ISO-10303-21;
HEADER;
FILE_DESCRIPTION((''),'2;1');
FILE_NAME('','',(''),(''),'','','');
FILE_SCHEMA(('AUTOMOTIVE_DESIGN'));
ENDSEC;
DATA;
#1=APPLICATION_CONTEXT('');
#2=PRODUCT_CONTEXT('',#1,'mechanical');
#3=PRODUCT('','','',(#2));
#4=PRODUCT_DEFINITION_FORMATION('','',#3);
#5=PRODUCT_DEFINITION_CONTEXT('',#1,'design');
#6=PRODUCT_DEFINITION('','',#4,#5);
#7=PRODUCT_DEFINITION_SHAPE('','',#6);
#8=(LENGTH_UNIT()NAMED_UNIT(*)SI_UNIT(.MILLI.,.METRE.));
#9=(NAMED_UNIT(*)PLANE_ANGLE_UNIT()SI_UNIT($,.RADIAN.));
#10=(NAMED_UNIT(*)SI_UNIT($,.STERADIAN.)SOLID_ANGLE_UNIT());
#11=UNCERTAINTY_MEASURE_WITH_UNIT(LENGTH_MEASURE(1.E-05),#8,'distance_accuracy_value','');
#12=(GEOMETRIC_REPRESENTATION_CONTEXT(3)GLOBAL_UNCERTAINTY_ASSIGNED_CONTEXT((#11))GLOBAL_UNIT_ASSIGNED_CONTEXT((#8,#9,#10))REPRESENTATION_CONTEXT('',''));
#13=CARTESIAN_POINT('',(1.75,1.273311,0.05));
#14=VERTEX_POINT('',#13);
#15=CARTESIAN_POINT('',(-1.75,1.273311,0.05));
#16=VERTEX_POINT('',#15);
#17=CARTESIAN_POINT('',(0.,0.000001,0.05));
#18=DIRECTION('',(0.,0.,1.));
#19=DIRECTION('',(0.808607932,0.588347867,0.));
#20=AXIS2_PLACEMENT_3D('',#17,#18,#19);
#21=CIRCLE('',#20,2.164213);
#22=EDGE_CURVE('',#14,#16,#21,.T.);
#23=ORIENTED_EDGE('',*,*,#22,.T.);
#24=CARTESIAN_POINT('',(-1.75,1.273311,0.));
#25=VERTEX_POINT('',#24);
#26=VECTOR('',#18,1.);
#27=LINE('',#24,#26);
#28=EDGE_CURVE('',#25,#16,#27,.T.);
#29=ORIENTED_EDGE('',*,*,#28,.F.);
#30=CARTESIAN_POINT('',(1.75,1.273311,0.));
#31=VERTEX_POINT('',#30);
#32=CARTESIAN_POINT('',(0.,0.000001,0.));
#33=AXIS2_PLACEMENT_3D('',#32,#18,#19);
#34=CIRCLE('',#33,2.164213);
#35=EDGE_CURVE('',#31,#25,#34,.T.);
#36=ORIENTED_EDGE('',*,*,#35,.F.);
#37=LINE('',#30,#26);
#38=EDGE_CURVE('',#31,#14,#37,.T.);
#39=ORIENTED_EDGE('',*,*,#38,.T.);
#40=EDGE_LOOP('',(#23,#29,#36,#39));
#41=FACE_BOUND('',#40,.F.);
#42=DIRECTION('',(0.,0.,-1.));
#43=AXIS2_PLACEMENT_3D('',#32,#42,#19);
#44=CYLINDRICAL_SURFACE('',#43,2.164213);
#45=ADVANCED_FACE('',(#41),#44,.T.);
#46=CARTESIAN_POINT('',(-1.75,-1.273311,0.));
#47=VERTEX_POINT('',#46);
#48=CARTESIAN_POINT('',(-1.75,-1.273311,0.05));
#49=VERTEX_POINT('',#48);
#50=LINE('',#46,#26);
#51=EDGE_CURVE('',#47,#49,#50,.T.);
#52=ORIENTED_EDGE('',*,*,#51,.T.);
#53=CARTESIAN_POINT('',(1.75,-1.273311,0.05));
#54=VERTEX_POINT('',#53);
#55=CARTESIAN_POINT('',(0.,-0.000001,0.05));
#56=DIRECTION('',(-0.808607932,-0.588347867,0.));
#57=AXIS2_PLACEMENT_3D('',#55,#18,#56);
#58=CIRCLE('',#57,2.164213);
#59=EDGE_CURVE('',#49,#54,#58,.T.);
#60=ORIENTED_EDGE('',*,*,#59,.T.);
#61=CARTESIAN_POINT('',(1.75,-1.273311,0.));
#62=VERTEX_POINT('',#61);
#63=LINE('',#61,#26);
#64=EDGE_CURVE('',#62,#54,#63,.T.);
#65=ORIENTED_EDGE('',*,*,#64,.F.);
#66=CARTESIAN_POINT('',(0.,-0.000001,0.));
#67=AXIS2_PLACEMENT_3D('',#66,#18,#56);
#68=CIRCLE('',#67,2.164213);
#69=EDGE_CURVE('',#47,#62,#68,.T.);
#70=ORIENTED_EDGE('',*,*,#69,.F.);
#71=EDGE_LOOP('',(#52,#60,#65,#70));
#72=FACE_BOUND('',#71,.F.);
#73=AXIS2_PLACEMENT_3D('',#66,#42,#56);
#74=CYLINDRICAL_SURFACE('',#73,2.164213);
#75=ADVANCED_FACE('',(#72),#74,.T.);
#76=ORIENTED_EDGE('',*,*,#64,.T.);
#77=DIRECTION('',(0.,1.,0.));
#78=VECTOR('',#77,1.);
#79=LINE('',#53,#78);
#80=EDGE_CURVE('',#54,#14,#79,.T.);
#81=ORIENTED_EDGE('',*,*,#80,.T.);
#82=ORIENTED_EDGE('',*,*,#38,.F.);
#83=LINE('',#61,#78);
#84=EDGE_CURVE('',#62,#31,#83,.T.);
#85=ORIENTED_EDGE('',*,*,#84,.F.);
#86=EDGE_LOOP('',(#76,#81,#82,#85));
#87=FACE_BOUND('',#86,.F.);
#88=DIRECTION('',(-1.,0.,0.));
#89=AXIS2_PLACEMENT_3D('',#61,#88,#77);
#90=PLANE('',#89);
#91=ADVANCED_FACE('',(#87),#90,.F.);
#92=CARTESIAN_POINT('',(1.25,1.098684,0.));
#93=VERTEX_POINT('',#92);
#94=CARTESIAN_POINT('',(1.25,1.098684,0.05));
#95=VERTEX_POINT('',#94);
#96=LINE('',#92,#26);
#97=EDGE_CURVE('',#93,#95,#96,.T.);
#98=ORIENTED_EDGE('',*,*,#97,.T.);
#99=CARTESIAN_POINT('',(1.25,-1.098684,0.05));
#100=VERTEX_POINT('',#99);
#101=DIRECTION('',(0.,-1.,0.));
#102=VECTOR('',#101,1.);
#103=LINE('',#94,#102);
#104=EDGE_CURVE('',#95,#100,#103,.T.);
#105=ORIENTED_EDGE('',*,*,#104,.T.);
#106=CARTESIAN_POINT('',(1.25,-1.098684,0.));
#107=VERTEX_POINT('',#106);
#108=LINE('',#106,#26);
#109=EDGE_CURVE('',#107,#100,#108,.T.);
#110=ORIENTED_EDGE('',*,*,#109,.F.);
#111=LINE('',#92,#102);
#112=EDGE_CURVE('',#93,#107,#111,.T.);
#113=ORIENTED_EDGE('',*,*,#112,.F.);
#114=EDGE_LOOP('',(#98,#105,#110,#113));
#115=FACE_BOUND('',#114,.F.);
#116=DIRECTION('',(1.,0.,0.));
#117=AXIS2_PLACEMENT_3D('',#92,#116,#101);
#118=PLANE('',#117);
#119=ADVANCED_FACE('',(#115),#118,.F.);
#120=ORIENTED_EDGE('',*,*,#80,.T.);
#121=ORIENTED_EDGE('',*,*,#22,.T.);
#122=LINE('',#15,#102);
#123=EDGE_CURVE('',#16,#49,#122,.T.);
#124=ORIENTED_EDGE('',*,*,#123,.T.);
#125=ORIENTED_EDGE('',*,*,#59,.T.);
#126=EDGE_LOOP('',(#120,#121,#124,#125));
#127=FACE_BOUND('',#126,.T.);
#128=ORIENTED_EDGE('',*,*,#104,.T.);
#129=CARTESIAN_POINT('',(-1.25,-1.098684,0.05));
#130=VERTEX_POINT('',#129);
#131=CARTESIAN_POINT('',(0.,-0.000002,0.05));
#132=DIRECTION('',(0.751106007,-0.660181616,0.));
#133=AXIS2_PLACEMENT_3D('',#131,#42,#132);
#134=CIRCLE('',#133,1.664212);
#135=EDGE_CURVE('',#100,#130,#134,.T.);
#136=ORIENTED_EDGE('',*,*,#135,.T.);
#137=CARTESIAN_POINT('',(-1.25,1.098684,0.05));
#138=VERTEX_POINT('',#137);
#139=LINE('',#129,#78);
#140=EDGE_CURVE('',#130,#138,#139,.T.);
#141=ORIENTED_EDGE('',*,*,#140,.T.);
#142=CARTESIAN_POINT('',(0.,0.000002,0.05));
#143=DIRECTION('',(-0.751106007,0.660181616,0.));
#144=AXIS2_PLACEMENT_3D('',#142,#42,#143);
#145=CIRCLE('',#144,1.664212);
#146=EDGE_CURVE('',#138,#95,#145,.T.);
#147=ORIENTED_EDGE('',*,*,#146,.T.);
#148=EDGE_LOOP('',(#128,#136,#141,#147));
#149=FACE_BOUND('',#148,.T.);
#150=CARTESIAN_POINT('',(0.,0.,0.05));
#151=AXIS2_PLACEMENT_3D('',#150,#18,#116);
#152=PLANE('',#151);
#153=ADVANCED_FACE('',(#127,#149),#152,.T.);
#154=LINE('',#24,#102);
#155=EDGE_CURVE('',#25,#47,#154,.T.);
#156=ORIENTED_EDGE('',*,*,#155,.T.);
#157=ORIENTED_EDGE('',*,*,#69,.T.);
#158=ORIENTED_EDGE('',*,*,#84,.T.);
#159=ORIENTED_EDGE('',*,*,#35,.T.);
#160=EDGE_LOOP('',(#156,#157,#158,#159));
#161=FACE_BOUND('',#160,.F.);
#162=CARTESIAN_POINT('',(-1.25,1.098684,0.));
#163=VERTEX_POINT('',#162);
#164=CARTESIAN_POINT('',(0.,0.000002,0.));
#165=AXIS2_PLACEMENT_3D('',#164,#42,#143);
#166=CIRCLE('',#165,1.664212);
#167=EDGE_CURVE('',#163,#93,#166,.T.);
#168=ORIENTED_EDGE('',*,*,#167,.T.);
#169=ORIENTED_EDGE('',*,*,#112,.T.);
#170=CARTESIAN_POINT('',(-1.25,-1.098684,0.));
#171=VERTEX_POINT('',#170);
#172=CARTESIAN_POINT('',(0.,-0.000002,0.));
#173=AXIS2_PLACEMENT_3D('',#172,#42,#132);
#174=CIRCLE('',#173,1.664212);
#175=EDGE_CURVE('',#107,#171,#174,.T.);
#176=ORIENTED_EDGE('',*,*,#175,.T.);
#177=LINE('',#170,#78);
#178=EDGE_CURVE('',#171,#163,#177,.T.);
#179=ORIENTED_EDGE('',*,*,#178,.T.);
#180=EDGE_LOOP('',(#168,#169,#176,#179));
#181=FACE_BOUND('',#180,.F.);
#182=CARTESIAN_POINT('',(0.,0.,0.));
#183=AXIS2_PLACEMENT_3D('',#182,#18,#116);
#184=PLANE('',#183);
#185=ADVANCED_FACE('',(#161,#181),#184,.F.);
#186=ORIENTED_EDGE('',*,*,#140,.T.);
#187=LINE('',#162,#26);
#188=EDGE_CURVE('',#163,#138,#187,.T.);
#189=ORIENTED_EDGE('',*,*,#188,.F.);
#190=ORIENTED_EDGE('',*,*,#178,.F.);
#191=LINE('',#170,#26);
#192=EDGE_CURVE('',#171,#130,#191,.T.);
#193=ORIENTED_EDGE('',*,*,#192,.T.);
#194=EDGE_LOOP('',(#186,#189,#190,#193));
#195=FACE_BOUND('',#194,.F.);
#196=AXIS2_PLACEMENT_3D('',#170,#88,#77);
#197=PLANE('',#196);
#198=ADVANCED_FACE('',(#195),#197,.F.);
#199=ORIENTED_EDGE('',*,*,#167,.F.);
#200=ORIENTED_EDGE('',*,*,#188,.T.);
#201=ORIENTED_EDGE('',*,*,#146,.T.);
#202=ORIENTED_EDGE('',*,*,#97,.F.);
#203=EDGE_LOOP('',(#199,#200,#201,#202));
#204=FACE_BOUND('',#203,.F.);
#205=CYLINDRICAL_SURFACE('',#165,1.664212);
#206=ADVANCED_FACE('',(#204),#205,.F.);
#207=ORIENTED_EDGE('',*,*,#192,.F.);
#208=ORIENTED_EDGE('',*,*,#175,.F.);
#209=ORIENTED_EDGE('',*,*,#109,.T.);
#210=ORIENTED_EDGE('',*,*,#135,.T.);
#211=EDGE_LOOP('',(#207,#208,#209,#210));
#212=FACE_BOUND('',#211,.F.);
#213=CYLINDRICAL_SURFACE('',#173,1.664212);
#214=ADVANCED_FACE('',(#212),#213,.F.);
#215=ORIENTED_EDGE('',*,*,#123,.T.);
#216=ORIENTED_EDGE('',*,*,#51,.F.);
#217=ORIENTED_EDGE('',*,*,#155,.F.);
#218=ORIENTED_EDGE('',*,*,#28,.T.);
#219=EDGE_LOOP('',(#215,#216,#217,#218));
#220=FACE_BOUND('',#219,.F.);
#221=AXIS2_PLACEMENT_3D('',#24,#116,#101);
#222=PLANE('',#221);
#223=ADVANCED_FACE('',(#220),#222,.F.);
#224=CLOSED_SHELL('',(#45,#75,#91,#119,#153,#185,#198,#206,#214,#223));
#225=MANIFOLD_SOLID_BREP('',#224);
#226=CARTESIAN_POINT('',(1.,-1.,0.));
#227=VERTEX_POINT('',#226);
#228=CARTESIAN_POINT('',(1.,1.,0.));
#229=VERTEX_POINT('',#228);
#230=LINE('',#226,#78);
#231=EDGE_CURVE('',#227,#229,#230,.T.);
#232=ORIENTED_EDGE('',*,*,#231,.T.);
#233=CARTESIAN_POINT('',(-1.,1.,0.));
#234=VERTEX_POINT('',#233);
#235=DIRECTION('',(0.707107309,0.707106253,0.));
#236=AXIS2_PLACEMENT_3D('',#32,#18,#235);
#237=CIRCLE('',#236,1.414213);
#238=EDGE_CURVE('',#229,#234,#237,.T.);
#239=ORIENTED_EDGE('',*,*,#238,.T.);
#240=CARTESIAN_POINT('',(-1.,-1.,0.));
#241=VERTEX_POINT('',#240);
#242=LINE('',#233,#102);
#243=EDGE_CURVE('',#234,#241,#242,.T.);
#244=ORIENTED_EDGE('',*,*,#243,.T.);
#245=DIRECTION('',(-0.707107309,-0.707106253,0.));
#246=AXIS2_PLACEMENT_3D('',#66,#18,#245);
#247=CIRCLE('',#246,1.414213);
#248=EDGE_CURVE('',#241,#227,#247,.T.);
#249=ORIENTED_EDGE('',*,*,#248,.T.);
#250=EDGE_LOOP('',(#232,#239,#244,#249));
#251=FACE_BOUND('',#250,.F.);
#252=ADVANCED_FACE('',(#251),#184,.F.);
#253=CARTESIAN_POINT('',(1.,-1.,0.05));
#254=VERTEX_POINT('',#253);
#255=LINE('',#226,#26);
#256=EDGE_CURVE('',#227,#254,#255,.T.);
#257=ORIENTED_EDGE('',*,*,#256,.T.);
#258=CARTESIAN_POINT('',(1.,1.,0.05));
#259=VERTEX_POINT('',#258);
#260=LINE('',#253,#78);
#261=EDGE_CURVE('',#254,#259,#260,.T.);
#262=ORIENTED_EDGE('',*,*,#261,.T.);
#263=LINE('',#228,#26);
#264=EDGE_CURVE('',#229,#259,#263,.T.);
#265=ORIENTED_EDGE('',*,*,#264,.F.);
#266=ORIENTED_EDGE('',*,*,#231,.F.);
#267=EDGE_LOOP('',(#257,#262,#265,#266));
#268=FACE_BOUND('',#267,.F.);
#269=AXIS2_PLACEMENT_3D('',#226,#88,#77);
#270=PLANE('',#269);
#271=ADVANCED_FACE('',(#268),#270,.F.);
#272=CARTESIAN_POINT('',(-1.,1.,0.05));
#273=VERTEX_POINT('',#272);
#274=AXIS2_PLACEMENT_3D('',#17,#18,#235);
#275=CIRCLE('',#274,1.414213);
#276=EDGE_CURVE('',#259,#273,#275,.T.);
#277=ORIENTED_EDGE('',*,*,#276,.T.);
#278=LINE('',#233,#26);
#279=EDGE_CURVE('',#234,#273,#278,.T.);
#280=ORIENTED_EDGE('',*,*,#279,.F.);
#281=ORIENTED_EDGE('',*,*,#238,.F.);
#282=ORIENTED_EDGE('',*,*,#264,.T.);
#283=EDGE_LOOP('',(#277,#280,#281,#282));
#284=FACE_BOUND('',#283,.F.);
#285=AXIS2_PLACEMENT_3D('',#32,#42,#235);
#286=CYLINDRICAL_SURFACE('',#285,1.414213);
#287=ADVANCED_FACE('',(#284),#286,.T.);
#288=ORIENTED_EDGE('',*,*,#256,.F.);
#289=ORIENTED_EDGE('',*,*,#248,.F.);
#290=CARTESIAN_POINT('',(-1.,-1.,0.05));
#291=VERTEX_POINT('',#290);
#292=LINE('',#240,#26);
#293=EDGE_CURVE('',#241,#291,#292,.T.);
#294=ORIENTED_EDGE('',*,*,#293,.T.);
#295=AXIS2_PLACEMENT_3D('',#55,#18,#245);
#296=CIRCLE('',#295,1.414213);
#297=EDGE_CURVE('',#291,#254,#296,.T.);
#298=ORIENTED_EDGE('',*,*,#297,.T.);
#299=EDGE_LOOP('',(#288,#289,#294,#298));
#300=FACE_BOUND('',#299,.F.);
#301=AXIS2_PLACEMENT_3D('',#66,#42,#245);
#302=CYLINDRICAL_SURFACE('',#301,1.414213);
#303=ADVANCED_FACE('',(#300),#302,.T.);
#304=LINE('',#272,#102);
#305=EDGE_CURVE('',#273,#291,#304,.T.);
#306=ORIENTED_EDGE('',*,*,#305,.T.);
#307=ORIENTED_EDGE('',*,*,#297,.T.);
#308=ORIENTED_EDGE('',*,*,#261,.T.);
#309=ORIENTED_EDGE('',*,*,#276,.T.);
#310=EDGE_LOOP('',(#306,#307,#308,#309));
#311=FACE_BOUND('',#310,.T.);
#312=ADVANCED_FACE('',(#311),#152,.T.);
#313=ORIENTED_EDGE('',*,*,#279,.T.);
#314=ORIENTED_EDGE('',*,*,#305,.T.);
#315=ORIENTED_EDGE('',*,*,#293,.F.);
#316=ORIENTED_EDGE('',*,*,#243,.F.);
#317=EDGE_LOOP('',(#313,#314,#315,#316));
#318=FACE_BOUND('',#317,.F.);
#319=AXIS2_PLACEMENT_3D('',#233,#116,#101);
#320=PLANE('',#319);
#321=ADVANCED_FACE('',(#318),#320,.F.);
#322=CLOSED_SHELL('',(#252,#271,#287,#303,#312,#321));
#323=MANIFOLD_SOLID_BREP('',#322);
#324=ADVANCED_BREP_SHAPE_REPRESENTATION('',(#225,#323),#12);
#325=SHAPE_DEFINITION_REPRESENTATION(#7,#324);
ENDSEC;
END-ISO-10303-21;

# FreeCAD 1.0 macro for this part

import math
import FreeCAD as App
import Part
import Sketcher

V = App.Vector

doc = App.newDocument("Part")
body = doc.addObject("PartDesign::Body", "Body")
body.AllowCompound = True

sketch1 = doc.addObject("Sketcher::SketchObject", "Sketch")
body.addObject(sketch1)
sketch1.AttachmentSupport = (doc.XY_Plane, [""])
sketch1.MapMode = "FlatFace"
sketch1.addGeometry([
    Part.LineSegment(V(1.8, -1.3, 0), V(1.8, 1.3, 0)),
    Part.ArcOfCircle(Part.Circle(V(0, 0, 0), V(0, 0, 1), 2.2), math.radians(36), math.radians(144)),
    Part.LineSegment(V(-1.8, 1.3, 0), V(-1.8, -1.3, 0)),
    Part.ArcOfCircle(Part.Circle(V(0, 0, 0), V(0, 0, 1), 2.2), math.radians(-144), math.radians(-36)),
    Part.ArcOfCircle(Part.Circle(V(0, 0, 0), V(0, 0, 1), 1.7), math.radians(-139), math.radians(-41)),
    Part.LineSegment(V(-1.2, -1.1, 0), V(-1.2, 1.1, 0)),
    Part.ArcOfCircle(Part.Circle(V(0, 0, 0), V(0, 0, 1), 1.7), math.radians(41), math.radians(139)),
    Part.LineSegment(V(1.2, 1.1, 0), V(1.2, -1.1, 0)),
    Part.ArcOfCircle(Part.Circle(V(0, 0, 0), V(0, 0, 1), 1.4), math.radians(45), math.radians(135)),
    Part.LineSegment(V(-1, 1, 0), V(-1, -1, 0)),
    Part.ArcOfCircle(Part.Circle(V(0, 0, 0), V(0, 0, 1), 1.4), math.radians(-135), math.radians(-45)),
    Part.LineSegment(V(1, -1, 0), V(1, 1, 0)),
], False)
sketch1.addConstraint([
    Sketcher.Constraint("Coincident", 0, 2, 1, 1),
    Sketcher.Constraint("Coincident", 1, 2, 2, 1),
    Sketcher.Constraint("Coincident", 2, 2, 3, 1),
    Sketcher.Constraint("Coincident", 3, 2, 0, 1),
    Sketcher.Constraint("Coincident", 4, 1, 5, 1),
    Sketcher.Constraint("Coincident", 5, 2, 6, 2),
    Sketcher.Constraint("Coincident", 6, 1, 7, 1),
    Sketcher.Constraint("Coincident", 7, 2, 4, 2),
    Sketcher.Constraint("Coincident", 8, 2, 9, 1),
    Sketcher.Constraint("Coincident", 9, 2, 10, 1),
    Sketcher.Constraint("Coincident", 10, 2, 11, 1),
    Sketcher.Constraint("Coincident", 11, 2, 8, 1),
    Sketcher.Constraint("Vertical", 0),
    Sketcher.Constraint("Vertical", 2),
    Sketcher.Constraint("Vertical", 5),
    Sketcher.Constraint("Vertical", 7),
    Sketcher.Constraint("Vertical", 9),
    Sketcher.Constraint("Vertical", 11),
    Sketcher.Constraint("Coincident", 1, 3, -1, 1),
    Sketcher.Constraint("Coincident", 3, 3, -1, 1),
    Sketcher.Constraint("Coincident", 4, 3, -1, 1),
    Sketcher.Constraint("Coincident", 6, 3, -1, 1),
    Sketcher.Constraint("Coincident", 8, 3, -1, 1),
    Sketcher.Constraint("Coincident", 10, 3, -1, 1),
    Sketcher.Constraint("Equal", 1, 3),
    Sketcher.Constraint("Equal", 4, 6),
    Sketcher.Constraint("Equal", 8, 10),
    Sketcher.Constraint("Horizontal", 0, 2, 1, 2),
    Sketcher.Constraint("Horizontal", 5, 2, 6, 1),
    Sketcher.Constraint("Horizontal", 9, 2, 10, 2),
    Sketcher.Constraint("DistanceY", 9, 2, 9, 1, 2.0),
    Sketcher.Constraint("DistanceX", 8, 2, -1, 1, 1.0),
    Sketcher.Constraint("DistanceX", 2, 2, 4, 1, 0.5),
    Sketcher.Constraint("DistanceX", -1, 1, 0, 2, 1.75),
    Sketcher.Constraint("Radius", 1, 2.164213),
    Sketcher.Constraint("Radius", 4, 1.664212),
])
pad1 = doc.addObject("PartDesign::Pad", "Pad")
body.addObject(pad1)
pad1.Profile = sketch1
pad1.Length = 0.05

doc.recompute()
